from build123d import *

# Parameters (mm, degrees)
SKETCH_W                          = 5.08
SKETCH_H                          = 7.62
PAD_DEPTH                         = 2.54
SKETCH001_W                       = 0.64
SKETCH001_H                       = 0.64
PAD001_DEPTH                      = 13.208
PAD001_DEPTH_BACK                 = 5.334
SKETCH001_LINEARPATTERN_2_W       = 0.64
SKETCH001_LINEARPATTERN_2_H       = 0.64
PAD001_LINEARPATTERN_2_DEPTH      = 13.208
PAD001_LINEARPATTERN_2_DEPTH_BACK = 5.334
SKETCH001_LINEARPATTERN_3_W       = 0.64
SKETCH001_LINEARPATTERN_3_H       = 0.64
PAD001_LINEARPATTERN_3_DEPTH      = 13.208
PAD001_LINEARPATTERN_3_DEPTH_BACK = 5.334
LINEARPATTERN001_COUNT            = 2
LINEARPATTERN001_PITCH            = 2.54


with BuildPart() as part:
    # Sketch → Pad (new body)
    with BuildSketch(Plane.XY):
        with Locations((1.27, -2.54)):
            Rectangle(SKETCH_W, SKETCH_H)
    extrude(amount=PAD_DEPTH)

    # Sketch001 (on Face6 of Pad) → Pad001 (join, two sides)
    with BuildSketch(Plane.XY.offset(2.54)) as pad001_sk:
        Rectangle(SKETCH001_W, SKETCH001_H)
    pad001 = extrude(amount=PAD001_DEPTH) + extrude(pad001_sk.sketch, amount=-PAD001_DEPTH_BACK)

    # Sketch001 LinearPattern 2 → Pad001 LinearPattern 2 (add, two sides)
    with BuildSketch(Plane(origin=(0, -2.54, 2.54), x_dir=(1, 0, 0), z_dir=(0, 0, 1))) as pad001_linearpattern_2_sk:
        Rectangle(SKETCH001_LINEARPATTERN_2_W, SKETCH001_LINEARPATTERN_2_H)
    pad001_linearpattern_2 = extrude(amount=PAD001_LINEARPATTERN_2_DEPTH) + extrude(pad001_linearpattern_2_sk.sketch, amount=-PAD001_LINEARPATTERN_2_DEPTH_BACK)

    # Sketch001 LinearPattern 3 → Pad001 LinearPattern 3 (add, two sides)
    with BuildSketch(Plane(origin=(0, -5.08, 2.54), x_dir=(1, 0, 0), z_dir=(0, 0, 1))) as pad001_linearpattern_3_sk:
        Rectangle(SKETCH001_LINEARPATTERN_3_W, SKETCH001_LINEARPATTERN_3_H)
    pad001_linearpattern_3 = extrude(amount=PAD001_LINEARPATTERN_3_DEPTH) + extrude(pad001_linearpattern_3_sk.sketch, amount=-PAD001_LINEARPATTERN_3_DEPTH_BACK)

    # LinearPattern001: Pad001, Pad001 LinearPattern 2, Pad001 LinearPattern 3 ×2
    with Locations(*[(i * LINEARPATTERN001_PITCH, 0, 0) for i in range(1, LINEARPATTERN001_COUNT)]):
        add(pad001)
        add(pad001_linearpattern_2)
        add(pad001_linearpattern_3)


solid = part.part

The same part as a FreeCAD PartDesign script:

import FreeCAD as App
import Part
import Sketcher
from FreeCAD import Vector
Q = App.Units.Quantity

doc = App.newDocument("Part")
body = doc.addObject("PartDesign::Body", "Body")

# Sketch on XY plane
sketch1 = doc.addObject("Sketcher::SketchObject", "Sketch")
body.addObject(sketch1)
sketch1.AttachmentSupport = (doc.XY_Plane, [""])
sketch1.MapMode = "FlatFace"
sketch1.addGeometry([
    Part.LineSegment(Vector(-1, 1, 0), Vector(-1, -6, 0)),
    Part.LineSegment(Vector(-1, -6, 0), Vector(4, -6, 0)),
    Part.LineSegment(Vector(4, -6, 0), Vector(4, 1, 0)),
    Part.LineSegment(Vector(4, 1, 0), Vector(-1, 1, 0)),
], False)
sketch1.addConstraint([
    Sketcher.Constraint("Coincident", 0, 2, 1, 1),
    Sketcher.Constraint("Coincident", 1, 2, 2, 1),
    Sketcher.Constraint("Coincident", 2, 2, 3, 1),
    Sketcher.Constraint("Coincident", 3, 2, 0, 1),
    Sketcher.Constraint("Vertical", 0),
    Sketcher.Constraint("Horizontal", 1),
    Sketcher.Constraint("Vertical", 2),
    Sketcher.Constraint("Horizontal", 3),
    Sketcher.Constraint("DistanceX", 1, 1, 1, 2, Q("0.2 in")),
    Sketcher.Constraint("DistanceY", 0, 2, 0, 1, Q("0.3 in")),
    Sketcher.Constraint("DistanceX", 0, 2, -1, 1, Q("0.05 in")),
    Sketcher.Constraint("DistanceY", 0, 2, -1, 1, Q("0.25 in")),
])
pad1 = doc.addObject("PartDesign::Pad", "Pad")
body.addObject(pad1)
pad1.Profile = sketch1
pad1.Length = Q("0.1 in")

# Sketch on XY plane
sketch2 = doc.addObject("Sketcher::SketchObject", "Sketch001")
body.addObject(sketch2)
sketch2.AttachmentSupport = (doc.XY_Plane, [""])
sketch2.MapMode = "FlatFace"
sketch2.AttachmentOffset = App.Placement(Vector(0, 0, 0.1 * 25.4), App.Rotation())
sketch2.addGeometry([
    Part.LineSegment(Vector(-0.3, 0.3, 0), Vector(-0.3, -0.3, 0)),
    Part.LineSegment(Vector(-0.3, -0.3, 0), Vector(0.3, -0.3, 0)),
    Part.LineSegment(Vector(0.3, -0.3, 0), Vector(0.3, 0.3, 0)),
    Part.LineSegment(Vector(0.3, 0.3, 0), Vector(-0.3, 0.3, 0)),
], False)
sketch2.addConstraint([
    Sketcher.Constraint("Coincident", 0, 2, 1, 1),
    Sketcher.Constraint("Coincident", 1, 2, 2, 1),
    Sketcher.Constraint("Coincident", 2, 2, 3, 1),
    Sketcher.Constraint("Coincident", 3, 2, 0, 1),
    Sketcher.Constraint("Vertical", 0),
    Sketcher.Constraint("Horizontal", 1),
    Sketcher.Constraint("Vertical", 2),
    Sketcher.Constraint("Horizontal", 3),
    Sketcher.Constraint("Symmetric", 0, 2, 2, 2, -1, 1),
    Sketcher.Constraint("Equal", 3, 0),
    Sketcher.Constraint("DistanceX", 1, 1, 1, 2, 0.64),
])
pad2 = doc.addObject("PartDesign::Pad", "Pad001")
body.addObject(pad2)
pad2.Profile = sketch2
pad2.Type = "TwoLengths"
pad2.Length = Q("0.52 in")
pad2.Length2 = Q("0.21 in")

# Sketch on XY plane
sketch3 = doc.addObject("Sketcher::SketchObject", "Sketch002")
body.addObject(sketch3)
sketch3.AttachmentSupport = (doc.XY_Plane, [""])
sketch3.MapMode = "FlatFace"
sketch3.AttachmentOffset = App.Placement(Vector(0, 0, 0.1 * 25.4), App.Rotation())
sketch3.addGeometry([
    Part.LineSegment(Vector(-0.3, -2.2, 0), Vector(-0.3, -2.9, 0)),
    Part.LineSegment(Vector(-0.3, -2.9, 0), Vector(0.3, -2.9, 0)),
    Part.LineSegment(Vector(0.3, -2.9, 0), Vector(0.3, -2.2, 0)),
    Part.LineSegment(Vector(0.3, -2.2, 0), Vector(-0.3, -2.2, 0)),
], False)
sketch3.addConstraint([
    Sketcher.Constraint("Coincident", 0, 2, 1, 1),
    Sketcher.Constraint("Coincident", 1, 2, 2, 1),
    Sketcher.Constraint("Coincident", 2, 2, 3, 1),
    Sketcher.Constraint("Coincident", 3, 2, 0, 1),
    Sketcher.Constraint("Vertical", 0),
    Sketcher.Constraint("Horizontal", 1),
    Sketcher.Constraint("Vertical", 2),
    Sketcher.Constraint("Horizontal", 3),
    Sketcher.Constraint("Equal", 3, 0),
    Sketcher.Constraint("DistanceX", 1, 1, 1, 2, 0.64),
    Sketcher.Constraint("DistanceX", 0, 2, -1, 1, 0.32),
    Sketcher.Constraint("DistanceY", 0, 2, -1, 1, 2.86),
])
pad3 = doc.addObject("PartDesign::Pad", "Pad002")
body.addObject(pad3)
pad3.Profile = sketch3
pad3.Type = "TwoLengths"
pad3.Length = Q("0.52 in")
pad3.Length2 = Q("0.21 in")

# Sketch on XY plane
sketch4 = doc.addObject("Sketcher::SketchObject", "Sketch003")
body.addObject(sketch4)
sketch4.AttachmentSupport = (doc.XY_Plane, [""])
sketch4.MapMode = "FlatFace"
sketch4.AttachmentOffset = App.Placement(Vector(0, 0, 0.1 * 25.4), App.Rotation())
sketch4.addGeometry([
    Part.LineSegment(Vector(-0.3, -4.8, 0), Vector(-0.3, -5.4, 0)),
    Part.LineSegment(Vector(-0.3, -5.4, 0), Vector(0.3, -5.4, 0)),
    Part.LineSegment(Vector(0.3, -5.4, 0), Vector(0.3, -4.8, 0)),
    Part.LineSegment(Vector(0.3, -4.8, 0), Vector(-0.3, -4.8, 0)),
], False)
sketch4.addConstraint([
    Sketcher.Constraint("Coincident", 0, 2, 1, 1),
    Sketcher.Constraint("Coincident", 1, 2, 2, 1),
    Sketcher.Constraint("Coincident", 2, 2, 3, 1),
    Sketcher.Constraint("Coincident", 3, 2, 0, 1),
    Sketcher.Constraint("Vertical", 0),
    Sketcher.Constraint("Horizontal", 1),
    Sketcher.Constraint("Vertical", 2),
    Sketcher.Constraint("Horizontal", 3),
    Sketcher.Constraint("Equal", 3, 0),
    Sketcher.Constraint("DistanceX", 1, 1, 1, 2, 0.64),
    Sketcher.Constraint("DistanceX", 0, 2, -1, 1, 0.32),
    Sketcher.Constraint("DistanceY", 0, 2, -1, 1, 5.4),
])
pad4 = doc.addObject("PartDesign::Pad", "Pad003")
body.addObject(pad4)
pad4.Profile = sketch4
pad4.Type = "TwoLengths"
pad4.Length = Q("0.52 in")
pad4.Length2 = Q("0.21 in")
doc.recompute()

linearpattern = doc.addObject("PartDesign::LinearPattern", "LinearPattern")
body.addObject(linearpattern)
linearpattern.Originals = [pad2, pad3, pad4]
linearpattern.Direction = (doc.X_Axis, [""])
linearpattern.Mode = "offset"
linearpattern.Offset = Q("0.1 in")
linearpattern.Occurrences = 2
body.Tip = linearpattern

doc.recompute()
